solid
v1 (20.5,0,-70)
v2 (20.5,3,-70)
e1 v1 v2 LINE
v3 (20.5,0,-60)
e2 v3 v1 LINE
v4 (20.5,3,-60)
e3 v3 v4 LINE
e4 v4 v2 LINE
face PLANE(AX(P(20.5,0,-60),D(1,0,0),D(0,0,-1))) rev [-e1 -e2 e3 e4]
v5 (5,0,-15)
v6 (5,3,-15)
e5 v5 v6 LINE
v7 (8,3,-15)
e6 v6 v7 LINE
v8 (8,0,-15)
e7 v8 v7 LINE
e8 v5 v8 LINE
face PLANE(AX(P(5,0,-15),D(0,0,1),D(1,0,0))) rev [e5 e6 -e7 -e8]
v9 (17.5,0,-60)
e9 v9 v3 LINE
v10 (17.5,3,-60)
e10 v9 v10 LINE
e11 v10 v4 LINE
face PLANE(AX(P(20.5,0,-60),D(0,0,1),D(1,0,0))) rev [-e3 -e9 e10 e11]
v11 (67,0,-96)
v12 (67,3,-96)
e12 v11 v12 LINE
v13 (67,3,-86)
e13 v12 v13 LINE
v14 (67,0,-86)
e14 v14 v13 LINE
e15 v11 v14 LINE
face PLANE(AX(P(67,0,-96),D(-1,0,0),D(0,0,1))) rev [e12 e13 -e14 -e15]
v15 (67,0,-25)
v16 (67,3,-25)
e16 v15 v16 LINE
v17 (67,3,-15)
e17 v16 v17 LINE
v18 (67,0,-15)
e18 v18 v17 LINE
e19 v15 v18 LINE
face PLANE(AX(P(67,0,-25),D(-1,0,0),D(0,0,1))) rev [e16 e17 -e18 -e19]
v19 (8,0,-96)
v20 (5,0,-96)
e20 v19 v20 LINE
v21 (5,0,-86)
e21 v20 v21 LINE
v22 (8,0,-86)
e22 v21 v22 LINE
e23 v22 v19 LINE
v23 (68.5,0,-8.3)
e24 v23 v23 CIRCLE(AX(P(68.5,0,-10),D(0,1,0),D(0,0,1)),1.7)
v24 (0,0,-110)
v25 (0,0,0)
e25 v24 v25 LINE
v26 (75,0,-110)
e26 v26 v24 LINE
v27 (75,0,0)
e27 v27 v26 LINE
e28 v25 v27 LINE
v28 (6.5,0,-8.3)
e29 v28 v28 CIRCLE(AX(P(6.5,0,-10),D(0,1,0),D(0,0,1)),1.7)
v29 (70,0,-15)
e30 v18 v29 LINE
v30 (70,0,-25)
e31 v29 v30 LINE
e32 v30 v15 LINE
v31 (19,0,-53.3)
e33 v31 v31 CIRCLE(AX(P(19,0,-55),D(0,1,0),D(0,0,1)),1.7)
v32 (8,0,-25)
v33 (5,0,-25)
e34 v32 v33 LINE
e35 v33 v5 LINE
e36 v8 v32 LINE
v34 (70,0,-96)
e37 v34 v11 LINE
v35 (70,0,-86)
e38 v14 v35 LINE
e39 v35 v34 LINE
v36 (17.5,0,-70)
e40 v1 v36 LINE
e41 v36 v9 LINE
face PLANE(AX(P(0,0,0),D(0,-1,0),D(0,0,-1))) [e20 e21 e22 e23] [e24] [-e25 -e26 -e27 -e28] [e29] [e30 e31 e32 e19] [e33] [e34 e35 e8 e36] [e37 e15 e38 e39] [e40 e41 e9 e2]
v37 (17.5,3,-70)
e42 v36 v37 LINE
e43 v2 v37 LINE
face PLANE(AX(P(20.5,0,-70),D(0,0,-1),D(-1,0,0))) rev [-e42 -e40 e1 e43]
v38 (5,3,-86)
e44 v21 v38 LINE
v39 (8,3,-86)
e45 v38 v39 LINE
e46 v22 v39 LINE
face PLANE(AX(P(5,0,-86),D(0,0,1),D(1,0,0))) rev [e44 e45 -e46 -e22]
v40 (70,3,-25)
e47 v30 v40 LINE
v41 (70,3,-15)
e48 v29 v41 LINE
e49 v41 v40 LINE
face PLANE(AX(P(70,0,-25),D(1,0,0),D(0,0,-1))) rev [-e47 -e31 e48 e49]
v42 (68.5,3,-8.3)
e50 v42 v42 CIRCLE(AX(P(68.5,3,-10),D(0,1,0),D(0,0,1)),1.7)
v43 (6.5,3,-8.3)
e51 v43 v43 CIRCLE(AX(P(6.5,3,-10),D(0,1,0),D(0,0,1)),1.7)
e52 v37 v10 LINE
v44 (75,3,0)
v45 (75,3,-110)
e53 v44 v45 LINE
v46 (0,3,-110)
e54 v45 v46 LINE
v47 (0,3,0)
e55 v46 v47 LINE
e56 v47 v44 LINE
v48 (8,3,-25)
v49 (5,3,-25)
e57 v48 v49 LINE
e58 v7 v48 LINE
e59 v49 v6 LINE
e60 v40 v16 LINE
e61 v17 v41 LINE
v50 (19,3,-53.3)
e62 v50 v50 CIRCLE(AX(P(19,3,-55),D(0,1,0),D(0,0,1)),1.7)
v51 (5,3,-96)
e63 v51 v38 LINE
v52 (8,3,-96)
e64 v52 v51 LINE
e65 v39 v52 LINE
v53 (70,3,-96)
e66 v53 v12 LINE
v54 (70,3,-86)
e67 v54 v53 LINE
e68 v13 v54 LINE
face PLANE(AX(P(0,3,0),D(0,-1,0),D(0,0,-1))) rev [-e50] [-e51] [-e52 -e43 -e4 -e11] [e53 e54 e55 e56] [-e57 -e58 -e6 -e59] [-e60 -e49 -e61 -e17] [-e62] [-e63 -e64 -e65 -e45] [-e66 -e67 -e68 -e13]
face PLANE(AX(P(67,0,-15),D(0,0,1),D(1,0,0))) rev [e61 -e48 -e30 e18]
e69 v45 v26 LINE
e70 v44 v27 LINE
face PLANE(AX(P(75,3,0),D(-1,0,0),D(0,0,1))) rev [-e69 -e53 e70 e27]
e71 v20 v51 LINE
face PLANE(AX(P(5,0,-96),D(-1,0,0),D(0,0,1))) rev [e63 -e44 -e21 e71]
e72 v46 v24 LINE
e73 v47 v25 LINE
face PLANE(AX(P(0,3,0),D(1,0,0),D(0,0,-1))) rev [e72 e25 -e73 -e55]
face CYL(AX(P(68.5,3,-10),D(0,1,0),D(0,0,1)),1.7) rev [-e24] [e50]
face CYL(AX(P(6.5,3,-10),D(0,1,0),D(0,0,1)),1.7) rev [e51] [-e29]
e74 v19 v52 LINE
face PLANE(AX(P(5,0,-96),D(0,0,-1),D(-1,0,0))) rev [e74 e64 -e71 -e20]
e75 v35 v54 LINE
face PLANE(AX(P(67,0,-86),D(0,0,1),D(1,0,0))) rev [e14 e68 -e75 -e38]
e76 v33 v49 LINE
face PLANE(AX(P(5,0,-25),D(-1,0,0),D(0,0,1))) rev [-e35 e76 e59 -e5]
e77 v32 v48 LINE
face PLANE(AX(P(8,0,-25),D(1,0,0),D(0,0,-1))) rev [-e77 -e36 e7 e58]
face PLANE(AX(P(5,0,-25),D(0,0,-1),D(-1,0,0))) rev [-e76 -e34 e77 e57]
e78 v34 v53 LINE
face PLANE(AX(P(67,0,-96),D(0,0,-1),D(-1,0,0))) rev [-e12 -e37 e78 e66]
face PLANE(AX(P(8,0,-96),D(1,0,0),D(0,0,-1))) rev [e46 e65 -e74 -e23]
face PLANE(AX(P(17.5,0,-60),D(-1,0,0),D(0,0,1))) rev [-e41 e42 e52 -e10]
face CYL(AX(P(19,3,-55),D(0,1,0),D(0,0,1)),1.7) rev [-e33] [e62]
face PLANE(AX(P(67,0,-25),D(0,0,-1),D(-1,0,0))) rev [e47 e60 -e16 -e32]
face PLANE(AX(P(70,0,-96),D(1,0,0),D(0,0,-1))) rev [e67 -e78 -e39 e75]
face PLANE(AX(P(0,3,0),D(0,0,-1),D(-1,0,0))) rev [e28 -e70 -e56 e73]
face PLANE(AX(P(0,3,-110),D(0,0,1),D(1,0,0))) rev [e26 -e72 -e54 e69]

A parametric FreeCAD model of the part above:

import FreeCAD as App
import Part
import Sketcher
from FreeCAD import Vector
Q = App.Units.Quantity


def add_polygon(sketch, points):
    """Adds a closed chain of lines whose ends are joined by coincident constraints."""
    first, n = sketch.GeometryCount, len(points)
    for a, b in zip(points, points[1:] + points[:1]):
        sketch.addGeometry(Part.LineSegment(App.Vector(*a, 0), App.Vector(*b, 0)), False)
    for i in range(n):
        sketch.addConstraint(Sketcher.Constraint("Coincident", first + i, 2, first + (i + 1) % n, 1))

doc = App.newDocument("Part")
body = doc.addObject("PartDesign::Body", "Body")

# Sketch on XZ plane
sketch1 = doc.addObject("Sketcher::SketchObject", "Sketch")
body.addObject(sketch1)
sketch1.AttachmentSupport = (doc.XZ_Plane, [""])
sketch1.MapMode = "FlatFace"
add_polygon(sketch1, [(0, -110), (0, 0), (75, 0), (75, -110)])  # lines 0-3
sketch1.addConstraint(Sketcher.Constraint("Vertical", 0))
sketch1.addConstraint(Sketcher.Constraint("Horizontal", 1))
sketch1.addConstraint(Sketcher.Constraint("Vertical", 2))
sketch1.addConstraint(Sketcher.Constraint("Horizontal", 3))
sketch1.addConstraint(Sketcher.Constraint("Coincident", 0, 2, -1, 1))
sketch1.addConstraint(Sketcher.Constraint("DistanceX", 1, 1, 1, 2, Q("75 mm")))
sketch1.addConstraint(Sketcher.Constraint("DistanceY", 0, 1, 0, 2, Q("110 mm")))
pad1 = doc.addObject("PartDesign::Pad", "Pad")
body.addObject(pad1)
pad1.Profile = sketch1
pad1.Length = 3
pad1.Reversed = True

# Sketch on XZ plane
sketch2 = doc.addObject("Sketcher::SketchObject", "Sketch001")
body.addObject(sketch2)
sketch2.AttachmentSupport = (doc.XZ_Plane, [""])
sketch2.MapMode = "FlatFace"
sketch2.AttachmentOffset = App.Placement(Vector(0, 0, -3), App.Rotation())
add_polygon(sketch2, [(5, -96), (5, -86), (8, -86), (8, -96)])  # lines 0-3
add_polygon(sketch2, [(67, -96), (67, -86), (70, -86), (70, -96)])  # lines 4-7
add_polygon(sketch2, [(67, -25), (67, -15), (70, -15), (70, -25)])  # lines 8-11
add_polygon(sketch2, [(5, -25), (5, -15), (8, -15), (8, -25)])  # lines 12-15
add_polygon(sketch2, [(17.5, -70), (17.5, -60), (20.5, -60), (20.5, -70)])  # lines 16-19
sketch2.addConstraint(Sketcher.Constraint("Vertical", 0))
sketch2.addConstraint(Sketcher.Constraint("Horizontal", 1))
sketch2.addConstraint(Sketcher.Constraint("Vertical", 2))
sketch2.addConstraint(Sketcher.Constraint("Horizontal", 3))
sketch2.addConstraint(Sketcher.Constraint("Vertical", 4))
sketch2.addConstraint(Sketcher.Constraint("Horizontal", 5))
sketch2.addConstraint(Sketcher.Constraint("Vertical", 6))
sketch2.addConstraint(Sketcher.Constraint("Horizontal", 7))
sketch2.addConstraint(Sketcher.Constraint("Vertical", 8))
sketch2.addConstraint(Sketcher.Constraint("Horizontal", 9))
sketch2.addConstraint(Sketcher.Constraint("Vertical", 10))
sketch2.addConstraint(Sketcher.Constraint("Horizontal", 11))
sketch2.addConstraint(Sketcher.Constraint("Vertical", 12))
sketch2.addConstraint(Sketcher.Constraint("Horizontal", 13))
sketch2.addConstraint(Sketcher.Constraint("Vertical", 14))
sketch2.addConstraint(Sketcher.Constraint("Horizontal", 15))
sketch2.addConstraint(Sketcher.Constraint("Vertical", 16))
sketch2.addConstraint(Sketcher.Constraint("Horizontal", 17))
sketch2.addConstraint(Sketcher.Constraint("Vertical", 18))
sketch2.addConstraint(Sketcher.Constraint("Horizontal", 19))
sketch2.addConstraint(Sketcher.Constraint("Horizontal", 1, 2, 4, 2))
sketch2.addConstraint(Sketcher.Constraint("Horizontal", 3, 2, 6, 2))
sketch2.addConstraint(Sketcher.Constraint("Horizontal", 9, 2, 12, 2))
sketch2.addConstraint(Sketcher.Constraint("Horizontal", 11, 2, 14, 2))
sketch2.addConstraint(Sketcher.Constraint("Vertical", 7, 2, 8, 2))
sketch2.addConstraint(Sketcher.Constraint("Vertical", 6, 2, 9, 2))
sketch2.addConstraint(Sketcher.Constraint("Vertical", 3, 2, 12, 2))
sketch2.addConstraint(Sketcher.Constraint("Vertical", 2, 2, 13, 2))
sketch2.addConstraint(Sketcher.Constraint("Equal", 3, 5))
sketch2.addConstraint(Sketcher.Constraint("Equal", 15, 17))
sketch2.addConstraint(Sketcher.Constraint("Equal", 6, 8))
sketch2.addConstraint(Sketcher.Constraint("Equal", 14, 16))
sketch2.addConstraint(Sketcher.Constraint("DistanceX", 1, 1, 1, 2, Q("3 mm")))
sketch2.addConstraint(Sketcher.Constraint("DistanceY", 0, 1, 0, 2, Q("10 mm")))
sketch2.addConstraint(Sketcher.Constraint("DistanceX", -1, 1, 0, 2, Q("5 mm")))
sketch2.addConstraint(Sketcher.Constraint("DistanceY", 0, 2, -1, 1, Q("86 mm")))
sketch2.addConstraint(Sketcher.Constraint("DistanceX", -1, 1, 4, 2, Q("67 mm")))
sketch2.addConstraint(Sketcher.Constraint("DistanceY", 8, 2, -1, 1, Q("15 mm")))
sketch2.addConstraint(Sketcher.Constraint("DistanceY", 16, 2, -1, 1, Q("60 mm")))
sketch2.addConstraint(Sketcher.Constraint("DistanceX", -1, 1, 16, 2, Q("17.5 mm")))
pocket1 = doc.addObject("PartDesign::Pocket", "Pocket")
body.addObject(pocket1)
pocket1.Profile = sketch2
pocket1.Length = 3
pocket1.Reversed = True

# Sketch on XZ plane
sketch3 = doc.addObject("Sketcher::SketchObject", "Sketch002")
body.addObject(sketch3)
sketch3.AttachmentSupport = (doc.XZ_Plane, [""])
sketch3.MapMode = "FlatFace"
sketch3.AttachmentOffset = App.Placement(Vector(0, 0, -3), App.Rotation())
sketch3.addGeometry(Part.Circle(Vector(6.5, -10, 0), Vector(0, 0, 1), 1.7), False)
sketch3.addGeometry(Part.Circle(Vector(68.5, -10, 0), Vector(0, 0, 1), 1.7), False)
sketch3.addGeometry(Part.Circle(Vector(19, -55, 0), Vector(0, 0, 1), 1.7), False)
sketch3.addConstraint(Sketcher.Constraint("Equal", 0, 1))
sketch3.addConstraint(Sketcher.Constraint("Equal", 1, 2))
sketch3.addConstraint(Sketcher.Constraint("Horizontal", 0, 3, 1, 3))
sketch3.addConstraint(Sketcher.Constraint("Diameter", 0, Q("3.4 mm")))
sketch3.addConstraint(Sketcher.Constraint("DistanceY", 0, 3, -1, 1, Q("10 mm")))
sketch3.addConstraint(Sketcher.Constraint("DistanceX", -1, 1, 2, 3, Q("19 mm")))
sketch3.addConstraint(Sketcher.Constraint("DistanceY", 2, 3, -1, 1, Q("55 mm")))
sketch3.addConstraint(Sketcher.Constraint("DistanceX", 0, 3, 1, 3, Q("62 mm")))
sketch3.addConstraint(Sketcher.Constraint("DistanceX", -1, 1, 0, 3, Q("6.5 mm")))
doc.recompute()
hole = doc.addObject("PartDesign::Hole", "Hole")
body.addObject(hole)
hole.Profile = sketch3
hole.ThreadType = "None"
hole.Diameter = 3.4
hole.DepthType = "Dimension"
hole.Depth = 3
hole.DrillPoint = "Angled"
hole.DrillPointAngle = 118
hole.Reversed = True

doc.recompute()
